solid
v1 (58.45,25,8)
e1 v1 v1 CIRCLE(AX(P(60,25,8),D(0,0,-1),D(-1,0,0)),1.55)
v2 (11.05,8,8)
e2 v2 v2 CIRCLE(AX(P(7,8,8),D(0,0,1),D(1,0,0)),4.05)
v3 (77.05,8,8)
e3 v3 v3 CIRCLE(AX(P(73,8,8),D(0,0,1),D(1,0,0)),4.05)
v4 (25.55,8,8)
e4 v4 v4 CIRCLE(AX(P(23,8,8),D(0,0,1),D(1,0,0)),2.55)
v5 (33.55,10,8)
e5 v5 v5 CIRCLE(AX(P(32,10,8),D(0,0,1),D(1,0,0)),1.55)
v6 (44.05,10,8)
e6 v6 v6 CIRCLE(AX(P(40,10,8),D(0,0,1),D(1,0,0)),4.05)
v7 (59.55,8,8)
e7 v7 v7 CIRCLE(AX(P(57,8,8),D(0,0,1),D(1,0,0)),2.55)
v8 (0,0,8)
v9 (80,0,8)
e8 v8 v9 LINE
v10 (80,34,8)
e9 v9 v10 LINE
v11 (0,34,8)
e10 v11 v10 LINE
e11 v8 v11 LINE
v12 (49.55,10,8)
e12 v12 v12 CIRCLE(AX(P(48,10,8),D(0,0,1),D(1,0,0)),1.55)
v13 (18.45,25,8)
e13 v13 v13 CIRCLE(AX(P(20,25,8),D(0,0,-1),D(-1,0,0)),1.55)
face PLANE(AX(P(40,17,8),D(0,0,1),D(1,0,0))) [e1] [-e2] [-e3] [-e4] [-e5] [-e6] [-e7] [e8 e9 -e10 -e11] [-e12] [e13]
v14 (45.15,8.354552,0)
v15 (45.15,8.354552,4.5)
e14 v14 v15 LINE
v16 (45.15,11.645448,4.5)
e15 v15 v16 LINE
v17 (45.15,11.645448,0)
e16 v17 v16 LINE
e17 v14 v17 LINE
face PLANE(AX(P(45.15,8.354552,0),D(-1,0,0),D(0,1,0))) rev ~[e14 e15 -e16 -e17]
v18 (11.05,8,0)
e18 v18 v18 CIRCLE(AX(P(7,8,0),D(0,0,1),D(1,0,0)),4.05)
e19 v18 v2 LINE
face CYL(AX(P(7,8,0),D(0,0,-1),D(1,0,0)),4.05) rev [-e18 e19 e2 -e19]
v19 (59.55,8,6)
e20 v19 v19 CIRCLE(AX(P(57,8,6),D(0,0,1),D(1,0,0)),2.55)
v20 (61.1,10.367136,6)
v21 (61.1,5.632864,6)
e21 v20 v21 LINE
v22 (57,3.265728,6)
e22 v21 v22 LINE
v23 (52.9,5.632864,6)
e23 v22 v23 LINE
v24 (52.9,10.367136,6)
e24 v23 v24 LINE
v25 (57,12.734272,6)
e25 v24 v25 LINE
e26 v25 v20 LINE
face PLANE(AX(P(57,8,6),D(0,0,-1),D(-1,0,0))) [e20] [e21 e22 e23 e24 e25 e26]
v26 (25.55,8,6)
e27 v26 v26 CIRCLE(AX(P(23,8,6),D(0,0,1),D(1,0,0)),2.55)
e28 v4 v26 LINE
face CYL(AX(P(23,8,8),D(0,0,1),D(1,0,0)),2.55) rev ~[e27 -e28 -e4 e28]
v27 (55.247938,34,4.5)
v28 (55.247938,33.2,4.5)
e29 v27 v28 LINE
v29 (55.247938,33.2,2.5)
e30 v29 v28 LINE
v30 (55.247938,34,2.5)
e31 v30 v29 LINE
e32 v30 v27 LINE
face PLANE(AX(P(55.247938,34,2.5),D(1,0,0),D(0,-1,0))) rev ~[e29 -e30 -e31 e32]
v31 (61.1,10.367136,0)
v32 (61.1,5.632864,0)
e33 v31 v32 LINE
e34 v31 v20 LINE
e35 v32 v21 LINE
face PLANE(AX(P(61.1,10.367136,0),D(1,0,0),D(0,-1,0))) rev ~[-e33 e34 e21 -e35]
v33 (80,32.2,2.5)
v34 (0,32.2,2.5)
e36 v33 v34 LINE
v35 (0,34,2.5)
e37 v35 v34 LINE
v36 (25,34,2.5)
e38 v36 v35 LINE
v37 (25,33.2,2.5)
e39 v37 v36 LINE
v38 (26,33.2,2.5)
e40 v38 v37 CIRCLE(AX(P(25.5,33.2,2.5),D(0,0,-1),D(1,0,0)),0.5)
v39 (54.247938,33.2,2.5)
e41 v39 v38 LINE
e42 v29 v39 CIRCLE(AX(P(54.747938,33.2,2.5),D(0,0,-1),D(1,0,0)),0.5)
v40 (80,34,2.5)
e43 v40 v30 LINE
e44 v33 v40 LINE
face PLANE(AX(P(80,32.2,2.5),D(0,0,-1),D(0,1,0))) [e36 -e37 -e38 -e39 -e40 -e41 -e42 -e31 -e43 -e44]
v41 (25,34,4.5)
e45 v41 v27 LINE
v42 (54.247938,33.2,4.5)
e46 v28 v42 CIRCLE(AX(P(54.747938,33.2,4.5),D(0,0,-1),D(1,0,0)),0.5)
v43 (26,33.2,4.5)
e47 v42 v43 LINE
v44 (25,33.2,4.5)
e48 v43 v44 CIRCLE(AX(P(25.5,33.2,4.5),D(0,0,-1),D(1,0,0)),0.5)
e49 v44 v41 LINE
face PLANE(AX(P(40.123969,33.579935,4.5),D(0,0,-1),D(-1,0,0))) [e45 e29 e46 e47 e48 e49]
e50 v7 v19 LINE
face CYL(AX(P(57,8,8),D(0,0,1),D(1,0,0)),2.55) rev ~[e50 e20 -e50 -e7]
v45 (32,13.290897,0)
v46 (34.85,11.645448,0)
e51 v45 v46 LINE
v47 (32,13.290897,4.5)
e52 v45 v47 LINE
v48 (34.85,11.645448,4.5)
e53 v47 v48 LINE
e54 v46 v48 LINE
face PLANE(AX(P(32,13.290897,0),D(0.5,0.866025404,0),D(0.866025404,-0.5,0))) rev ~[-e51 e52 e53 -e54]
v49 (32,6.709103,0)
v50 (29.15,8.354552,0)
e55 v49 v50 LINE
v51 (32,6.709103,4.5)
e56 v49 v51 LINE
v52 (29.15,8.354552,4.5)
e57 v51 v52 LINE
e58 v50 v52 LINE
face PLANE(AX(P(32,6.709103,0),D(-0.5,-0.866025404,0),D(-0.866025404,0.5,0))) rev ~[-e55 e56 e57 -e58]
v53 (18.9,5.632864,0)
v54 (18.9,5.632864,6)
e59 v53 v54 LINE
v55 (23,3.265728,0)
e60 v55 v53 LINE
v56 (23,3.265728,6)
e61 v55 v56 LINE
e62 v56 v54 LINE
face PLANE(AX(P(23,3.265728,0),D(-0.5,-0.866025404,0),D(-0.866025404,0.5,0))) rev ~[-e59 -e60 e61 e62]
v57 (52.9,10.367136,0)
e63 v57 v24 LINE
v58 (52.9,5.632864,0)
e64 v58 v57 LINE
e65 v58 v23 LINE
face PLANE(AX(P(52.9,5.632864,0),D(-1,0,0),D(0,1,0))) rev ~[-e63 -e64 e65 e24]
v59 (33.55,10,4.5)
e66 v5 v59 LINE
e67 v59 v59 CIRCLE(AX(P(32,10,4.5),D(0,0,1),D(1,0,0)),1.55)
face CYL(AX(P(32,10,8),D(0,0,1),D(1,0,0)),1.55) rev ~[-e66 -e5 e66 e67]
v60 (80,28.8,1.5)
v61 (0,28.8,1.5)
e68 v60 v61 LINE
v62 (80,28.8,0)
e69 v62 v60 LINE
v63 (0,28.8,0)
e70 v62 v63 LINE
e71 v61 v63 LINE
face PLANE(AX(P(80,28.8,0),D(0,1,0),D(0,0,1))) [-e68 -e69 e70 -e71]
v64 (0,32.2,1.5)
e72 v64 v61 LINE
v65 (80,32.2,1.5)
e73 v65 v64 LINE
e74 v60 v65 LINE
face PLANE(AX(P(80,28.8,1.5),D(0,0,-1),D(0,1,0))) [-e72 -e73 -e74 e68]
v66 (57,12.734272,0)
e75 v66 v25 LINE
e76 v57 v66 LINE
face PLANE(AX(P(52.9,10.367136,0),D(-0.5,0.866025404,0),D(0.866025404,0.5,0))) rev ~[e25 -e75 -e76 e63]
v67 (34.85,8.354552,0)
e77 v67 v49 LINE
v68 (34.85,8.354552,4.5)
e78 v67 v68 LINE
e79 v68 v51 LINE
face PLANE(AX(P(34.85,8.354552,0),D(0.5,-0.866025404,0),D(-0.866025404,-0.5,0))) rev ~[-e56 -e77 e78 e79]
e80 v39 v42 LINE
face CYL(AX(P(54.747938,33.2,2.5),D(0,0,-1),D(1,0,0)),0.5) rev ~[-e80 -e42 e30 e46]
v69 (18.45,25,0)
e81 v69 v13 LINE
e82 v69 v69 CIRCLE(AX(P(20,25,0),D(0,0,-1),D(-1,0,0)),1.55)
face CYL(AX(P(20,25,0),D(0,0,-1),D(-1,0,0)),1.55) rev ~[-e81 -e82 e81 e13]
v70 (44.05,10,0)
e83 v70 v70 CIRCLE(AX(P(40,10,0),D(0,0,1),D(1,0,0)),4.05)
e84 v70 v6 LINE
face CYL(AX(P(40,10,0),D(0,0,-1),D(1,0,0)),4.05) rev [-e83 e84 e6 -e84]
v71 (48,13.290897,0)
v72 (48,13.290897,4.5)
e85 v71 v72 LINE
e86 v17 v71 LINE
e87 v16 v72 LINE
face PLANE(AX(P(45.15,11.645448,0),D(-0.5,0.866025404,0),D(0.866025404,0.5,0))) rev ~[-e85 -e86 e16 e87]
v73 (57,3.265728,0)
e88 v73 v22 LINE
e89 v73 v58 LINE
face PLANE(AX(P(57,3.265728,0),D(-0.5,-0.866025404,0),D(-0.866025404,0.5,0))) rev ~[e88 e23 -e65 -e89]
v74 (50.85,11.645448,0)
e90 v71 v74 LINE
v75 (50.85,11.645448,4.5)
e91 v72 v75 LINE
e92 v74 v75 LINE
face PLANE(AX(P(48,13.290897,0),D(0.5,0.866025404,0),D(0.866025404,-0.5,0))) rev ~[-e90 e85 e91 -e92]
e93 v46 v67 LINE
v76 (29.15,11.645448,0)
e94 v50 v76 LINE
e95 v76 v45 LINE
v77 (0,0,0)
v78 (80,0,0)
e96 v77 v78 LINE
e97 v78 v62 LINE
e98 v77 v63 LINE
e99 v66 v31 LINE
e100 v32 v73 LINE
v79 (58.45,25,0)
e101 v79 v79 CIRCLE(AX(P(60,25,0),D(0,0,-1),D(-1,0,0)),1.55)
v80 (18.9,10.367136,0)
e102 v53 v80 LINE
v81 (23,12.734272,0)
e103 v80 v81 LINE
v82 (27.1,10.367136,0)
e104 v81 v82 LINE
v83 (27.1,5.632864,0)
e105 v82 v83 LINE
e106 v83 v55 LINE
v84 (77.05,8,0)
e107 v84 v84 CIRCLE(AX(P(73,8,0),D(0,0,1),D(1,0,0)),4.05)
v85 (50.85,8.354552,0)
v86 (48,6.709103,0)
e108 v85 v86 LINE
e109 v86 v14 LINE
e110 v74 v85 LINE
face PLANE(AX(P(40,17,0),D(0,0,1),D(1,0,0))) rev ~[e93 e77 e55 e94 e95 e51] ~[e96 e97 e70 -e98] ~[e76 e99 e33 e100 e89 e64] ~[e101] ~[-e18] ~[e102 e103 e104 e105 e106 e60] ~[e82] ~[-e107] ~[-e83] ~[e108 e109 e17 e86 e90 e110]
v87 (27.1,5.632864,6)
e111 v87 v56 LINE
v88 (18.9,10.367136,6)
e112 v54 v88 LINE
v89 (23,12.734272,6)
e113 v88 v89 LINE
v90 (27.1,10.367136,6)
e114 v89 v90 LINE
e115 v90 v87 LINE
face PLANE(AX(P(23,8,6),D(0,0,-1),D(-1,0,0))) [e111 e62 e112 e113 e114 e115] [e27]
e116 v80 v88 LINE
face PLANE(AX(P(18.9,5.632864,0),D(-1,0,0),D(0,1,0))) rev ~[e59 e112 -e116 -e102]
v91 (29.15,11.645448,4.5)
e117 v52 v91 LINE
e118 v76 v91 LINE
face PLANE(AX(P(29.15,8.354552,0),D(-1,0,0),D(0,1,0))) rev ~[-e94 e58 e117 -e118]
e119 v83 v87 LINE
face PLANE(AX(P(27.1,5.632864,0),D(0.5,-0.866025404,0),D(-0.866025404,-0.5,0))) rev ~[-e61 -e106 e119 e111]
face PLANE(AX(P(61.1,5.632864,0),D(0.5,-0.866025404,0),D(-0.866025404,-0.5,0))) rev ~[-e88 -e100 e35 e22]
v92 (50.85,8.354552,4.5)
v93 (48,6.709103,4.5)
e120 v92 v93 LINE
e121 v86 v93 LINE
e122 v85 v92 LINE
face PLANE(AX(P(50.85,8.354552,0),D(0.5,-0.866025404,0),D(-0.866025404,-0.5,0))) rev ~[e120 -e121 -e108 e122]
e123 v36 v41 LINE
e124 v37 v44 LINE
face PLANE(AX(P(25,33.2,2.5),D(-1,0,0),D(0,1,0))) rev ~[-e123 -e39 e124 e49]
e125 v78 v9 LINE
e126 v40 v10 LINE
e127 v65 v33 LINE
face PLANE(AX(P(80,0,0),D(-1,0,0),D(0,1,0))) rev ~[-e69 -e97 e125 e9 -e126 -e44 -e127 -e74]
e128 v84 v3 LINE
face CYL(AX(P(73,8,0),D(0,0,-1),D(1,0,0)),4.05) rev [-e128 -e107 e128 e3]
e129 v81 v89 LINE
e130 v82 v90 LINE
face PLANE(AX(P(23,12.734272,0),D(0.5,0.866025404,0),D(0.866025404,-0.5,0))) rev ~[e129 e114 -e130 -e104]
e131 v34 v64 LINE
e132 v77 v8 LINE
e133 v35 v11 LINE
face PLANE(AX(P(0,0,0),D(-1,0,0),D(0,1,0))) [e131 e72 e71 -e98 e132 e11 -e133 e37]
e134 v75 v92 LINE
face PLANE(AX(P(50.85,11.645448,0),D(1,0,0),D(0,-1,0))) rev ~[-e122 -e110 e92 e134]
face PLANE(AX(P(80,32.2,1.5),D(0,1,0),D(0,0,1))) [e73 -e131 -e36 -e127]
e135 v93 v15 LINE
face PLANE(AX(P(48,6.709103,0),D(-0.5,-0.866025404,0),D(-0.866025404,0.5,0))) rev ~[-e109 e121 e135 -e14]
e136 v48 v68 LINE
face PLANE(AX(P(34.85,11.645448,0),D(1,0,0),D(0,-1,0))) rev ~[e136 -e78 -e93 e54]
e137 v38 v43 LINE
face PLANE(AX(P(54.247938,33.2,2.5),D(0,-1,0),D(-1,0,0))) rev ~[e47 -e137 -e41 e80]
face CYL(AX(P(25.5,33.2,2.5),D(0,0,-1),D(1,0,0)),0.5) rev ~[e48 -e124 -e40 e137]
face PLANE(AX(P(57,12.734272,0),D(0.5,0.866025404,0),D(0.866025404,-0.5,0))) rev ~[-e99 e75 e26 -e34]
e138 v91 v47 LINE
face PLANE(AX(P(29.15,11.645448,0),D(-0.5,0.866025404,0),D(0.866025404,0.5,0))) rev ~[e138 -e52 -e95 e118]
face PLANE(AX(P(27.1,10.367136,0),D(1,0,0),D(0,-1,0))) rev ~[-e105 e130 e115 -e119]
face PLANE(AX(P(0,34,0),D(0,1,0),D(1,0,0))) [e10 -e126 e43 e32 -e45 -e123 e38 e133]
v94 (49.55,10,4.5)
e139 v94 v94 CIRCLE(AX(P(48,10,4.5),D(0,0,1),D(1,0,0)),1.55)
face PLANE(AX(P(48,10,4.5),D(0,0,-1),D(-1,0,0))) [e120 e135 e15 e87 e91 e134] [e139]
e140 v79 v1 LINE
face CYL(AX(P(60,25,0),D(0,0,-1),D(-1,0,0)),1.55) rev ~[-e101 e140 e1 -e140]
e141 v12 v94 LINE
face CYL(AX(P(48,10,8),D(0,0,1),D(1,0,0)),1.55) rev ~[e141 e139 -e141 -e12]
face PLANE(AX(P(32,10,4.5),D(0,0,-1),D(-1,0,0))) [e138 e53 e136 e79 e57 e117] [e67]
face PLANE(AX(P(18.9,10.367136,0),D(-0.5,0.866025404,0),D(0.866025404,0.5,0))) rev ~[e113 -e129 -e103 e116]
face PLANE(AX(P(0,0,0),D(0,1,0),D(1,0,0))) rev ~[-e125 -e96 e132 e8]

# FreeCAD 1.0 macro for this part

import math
import FreeCAD as App
import Part
import Sketcher
from FreeCAD import Vector
Q = App.Units.Quantity


def add_polygon(sketch, points):
    """Adds a closed chain of lines whose ends are joined by coincident constraints."""
    first, n = sketch.GeometryCount, len(points)
    for a, b in zip(points, points[1:] + points[:1]):
        sketch.addGeometry(Part.LineSegment(App.Vector(*a, 0), App.Vector(*b, 0)), False)
    for i in range(n):
        sketch.addConstraint(Sketcher.Constraint("Coincident", first + i, 2, first + (i + 1) % n, 1))

doc = App.newDocument("Part")
body = doc.addObject("PartDesign::Body", "Body")

sketch1 = body.newObject("Sketcher::SketchObject", "Sketch")
sketch1.AttachmentSupport = (doc.getObject("XY_Plane"), [""])
sketch1.MapMode = "FlatFace"
add_polygon(sketch1, [(0, 34), (0, 0), (80, 0), (80, 34)])
sketch1.addGeometry(Part.Circle(Vector(7, 8, 0), Vector(0, 0, 1), 4), False)
sketch1.addGeometry(Part.Circle(Vector(73, 8, 0), Vector(0, 0, 1), 4), False)
sketch1.addGeometry(Part.Circle(Vector(40, 10, 0), Vector(0, 0, 1), 4), False)
sketch1.addConstraint([
    Sketcher.Constraint("Vertical", 0),
    Sketcher.Constraint("Horizontal", 1),
    Sketcher.Constraint("Vertical", 2),
    Sketcher.Constraint("Horizontal", 3),
    Sketcher.Constraint("Coincident", 0, 2, -1, 1),
    Sketcher.Constraint("Equal", 4, 5),
    Sketcher.Constraint("Equal", 5, 6),
    Sketcher.Constraint("Horizontal", 4, 3, 5, 3),
    Sketcher.Constraint("Diameter", 4, Q("8.1 mm")),
    Sketcher.Constraint("DistanceX", 1, 1, 1, 2, Q("80 mm")),
    Sketcher.Constraint("DistanceY", 0, 2, 0, 1, Q("34 mm")),
    Sketcher.Constraint("DistanceX", -1, 1, 4, 3, Q("7 mm")),
    Sketcher.Constraint("DistanceY", -1, 1, 4, 3, Q("8 mm")),
    Sketcher.Constraint("DistanceX", -1, 1, 5, 3, Q("73 mm")),
    Sketcher.Constraint("DistanceX", -1, 1, 6, 3, Q("40 mm")),
    Sketcher.Constraint("DistanceY", -1, 1, 6, 3, Q("10 mm")),
])
pad1 = body.newObject("PartDesign::Pad", "Pad")
pad1.Profile = sketch1
pad1.Length = 8

sketch2 = body.newObject("Sketcher::SketchObject", "Sketch001")
sketch2.AttachmentSupport = (doc.getObject("XY_Plane"), [""])
sketch2.MapMode = "FlatFace"
sketch2.AttachmentOffset = App.Placement(Vector(0, 0, 8), App.Rotation())
sketch2.addGeometry([
    Part.Circle(Vector(23, 8, 0), Vector(0, 0, 1), 2.5),
    Part.Circle(Vector(57, 8, 0), Vector(0, 0, 1), 2.5),
], False)
sketch2.addConstraint([
    Sketcher.Constraint("Equal", 0, 1),
    Sketcher.Constraint("Horizontal", 0, 3, 1, 3),
    Sketcher.Constraint("Diameter", 0, Q("5.1 mm")),
    Sketcher.Constraint("DistanceX", -1, 1, 0, 3, Q("23 mm")),
    Sketcher.Constraint("DistanceY", -1, 1, 0, 3, Q("8 mm")),
    Sketcher.Constraint("DistanceX", -1, 1, 1, 3, Q("57 mm")),
])
pocket1 = body.newObject("PartDesign::Pocket", "Pocket")
pocket1.Profile = sketch2
pocket1.Type = "ThroughAll"

sketch3 = body.newObject("Sketcher::SketchObject", "Sketch002")
sketch3.AttachmentSupport = (doc.getObject("YZ_Plane"), [""])
sketch3.MapMode = "FlatFace"
sketch3.AttachmentOffset = App.Placement(Vector(0, 0, 80), App.Rotation())
add_polygon(sketch3, [(32.2, 2.5), (32.2, 1.5), (28.8, 1.5), (28.8, 0), (34, 0), (34, 2.5)])
sketch3.addConstraint([
    Sketcher.Constraint("Vertical", 0),
    Sketcher.Constraint("Horizontal", 1),
    Sketcher.Constraint("Vertical", 2),
    Sketcher.Constraint("Horizontal", 3),
    Sketcher.Constraint("Vertical", 4),
    Sketcher.Constraint("Horizontal", 5),
    Sketcher.Constraint("PointOnObject", 2, 2, -1),
    Sketcher.Constraint("DistanceY", 0, 2, 0, 1, Q("1 mm")),
    Sketcher.Constraint("DistanceX", 1, 2, 1, 1, Q("3.4 mm")),
    Sketcher.Constraint("DistanceX", 3, 1, 3, 2, Q("5.2 mm")),
    Sketcher.Constraint("DistanceY", 2, 2, 2, 1, Q("1.5 mm")),
    Sketcher.Constraint("DistanceX", -1, 1, 3, 2, Q("34 mm")),
])
pocket2 = body.newObject("PartDesign::Pocket", "Pocket001")
pocket2.Profile = sketch3
pocket2.Type = "ThroughAll"

sketch4 = body.newObject("Sketcher::SketchObject", "Sketch003")
sketch4.AttachmentSupport = (doc.getObject("XY_Plane"), [""])
sketch4.MapMode = "FlatFace"
sketch4.AttachmentOffset = App.Placement(Vector(0, 0, 8), App.Rotation())
sketch4.addGeometry([
    Part.Circle(Vector(48, 10, 0), Vector(0, 0, 1), 1.6),
    Part.Circle(Vector(32, 10, 0), Vector(0, 0, 1), 1.6),
], False)
sketch4.addConstraint([
    Sketcher.Constraint("Equal", 0, 1),
    Sketcher.Constraint("Horizontal", 0, 3, 1, 3),
    Sketcher.Constraint("Diameter", 0, Q("3.1 mm")),
    Sketcher.Constraint("DistanceX", -1, 1, 0, 3, Q("48 mm")),
    Sketcher.Constraint("DistanceY", -1, 1, 0, 3, Q("10 mm")),
    Sketcher.Constraint("DistanceX", -1, 1, 1, 3, Q("32 mm")),
])
pocket3 = body.newObject("PartDesign::Pocket", "Pocket002")
pocket3.Profile = sketch4
pocket3.Type = "ThroughAll"

sketch5 = body.newObject("Sketcher::SketchObject", "Sketch004")
sketch5.AttachmentSupport = (doc.getObject("XY_Plane"), [""])
sketch5.MapMode = "FlatFace"
add_polygon(sketch5, [(45.1, 8.4), (45.1, 11.6), (48, 13.3), (50.9, 11.6), (50.9, 8.4), (48, 6.7)])
add_polygon(sketch5, [(29.1, 8.4), (29.1, 11.6), (32, 13.3), (34.9, 11.6), (34.9, 8.4), (32, 6.7)])
sketch5.addConstraint([
    Sketcher.Constraint("Vertical", 0),
    Sketcher.Constraint("Vertical", 3),
    Sketcher.Constraint("Vertical", 6),
    Sketcher.Constraint("Vertical", 9),
    Sketcher.Constraint("Parallel", 1, 4),
    Sketcher.Constraint("Parallel", 2, 5),
    Sketcher.Constraint("Parallel", 4, 7),
    Sketcher.Constraint("Parallel", 5, 8),
    Sketcher.Constraint("Parallel", 7, 10),
    Sketcher.Constraint("Parallel", 8, 11),
    Sketcher.Constraint("Horizontal", 0, 2, 2, 2),
    Sketcher.Constraint("Horizontal", 3, 2, 5, 2),
    Sketcher.Constraint("Horizontal", 2, 2, 6, 2),
    Sketcher.Constraint("Horizontal", 1, 2, 7, 2),
    Sketcher.Constraint("Horizontal", 6, 2, 8, 2),
    Sketcher.Constraint("Horizontal", 5, 2, 9, 2),
    Sketcher.Constraint("Horizontal", 4, 2, 10, 2),
    Sketcher.Constraint("Vertical", 1, 2, 4, 2),
    Sketcher.Constraint("Angle", 1, Q("30 deg")),
    Sketcher.Constraint("DistanceX", -1, 1, 1, 2, Q("48 mm")),
    Sketcher.Constraint("DistanceX", -1, 1, 7, 2, Q("32 mm")),
    Sketcher.Constraint("DistanceX", 0, 2, 2, 2, Q("5.7 mm")),
    Sketcher.Constraint("DistanceY", 0, 1, 0, 2, Q("3.290897 mm")),
    Sketcher.Constraint("DistanceY", -1, 1, 0, 2, Q("11.645448 mm")),
])
pocket4 = body.newObject("PartDesign::Pocket", "Pocket003")
pocket4.Profile = sketch5
pocket4.Length = 4.5
pocket4.Reversed = True

sketch6 = body.newObject("Sketcher::SketchObject", "Sketch005")
sketch6.AttachmentSupport = (doc.getObject("XY_Plane"), [""])
sketch6.MapMode = "FlatFace"
sketch6.addGeometry([
    Part.Circle(Vector(60, 25, 0), Vector(0, 0, 1), 1.6),
    Part.Circle(Vector(20, 25, 0), Vector(0, 0, 1), 1.6),
], False)
sketch6.addConstraint([
    Sketcher.Constraint("Equal", 0, 1),
    Sketcher.Constraint("Horizontal", 0, 3, 1, 3),
    Sketcher.Constraint("Diameter", 0, Q("3.1 mm")),
    Sketcher.Constraint("DistanceX", -1, 1, 0, 3, Q("60 mm")),
    Sketcher.Constraint("DistanceY", -1, 1, 0, 3, Q("25 mm")),
    Sketcher.Constraint("DistanceX", -1, 1, 1, 3, Q("20 mm")),
])
pocket5 = body.newObject("PartDesign::Pocket", "Pocket004")
pocket5.Profile = sketch6
pocket5.Type = "ThroughAll"
pocket5.Reversed = True

sketch7 = body.newObject("Sketcher::SketchObject", "Sketch006")
sketch7.AttachmentSupport = (doc.getObject("XY_Plane"), [""])
sketch7.MapMode = "FlatFace"
sketch7.AttachmentOffset = App.Placement(Vector(0, 0, 2.5), App.Rotation())
sketch7.addGeometry([
    Part.LineSegment(Vector(25, 34, 0), Vector(55.2, 34, 0)),
    Part.LineSegment(Vector(55.2, 34, 0), Vector(55.2, 33.2, 0)),
    Part.ArcOfCircle(Part.Circle(Vector(54.7, 33.2, 0), Vector(0, 0, 1), 0.5), math.radians(180), math.radians(360)),
    Part.LineSegment(Vector(54.2, 33.2, 0), Vector(26, 33.2, 0)),
    Part.ArcOfCircle(Part.Circle(Vector(25.5, 33.2, 0), Vector(0, 0, 1), 0.5), math.radians(180), math.radians(360)),
    Part.LineSegment(Vector(25, 33.2, 0), Vector(25, 34, 0)),
], False)
sketch7.addConstraint([
    Sketcher.Constraint("Coincident", 0, 2, 1, 1),
    Sketcher.Constraint("Tangent", 1, 2, 2, 2),
    Sketcher.Constraint("Coincident", 2, 1, 3, 1),
    Sketcher.Constraint("Coincident", 3, 2, 4, 2),
    Sketcher.Constraint("Tangent", 4, 1, 5, 1),
    Sketcher.Constraint("Coincident", 5, 2, 0, 1),
    Sketcher.Constraint("Horizontal", 0),
    Sketcher.Constraint("Vertical", 1),
    Sketcher.Constraint("Horizontal", 3),
    Sketcher.Constraint("Vertical", 5),
    Sketcher.Constraint("Equal", 2, 4),
    Sketcher.Constraint("Horizontal", 2, 3, 4, 3),
    Sketcher.Constraint("Horizontal", 1, 2, 2, 1),
    Sketcher.Constraint("Radius", 2, Q("0.5 mm")),
    Sketcher.Constraint("DistanceY", 1, 2, 1, 1, Q("0.8 mm")),
    Sketcher.Constraint("DistanceY", -1, 1, 0, 2, Q("34 mm")),
    Sketcher.Constraint("DistanceX", -1, 1, 3, 2, Q("26 mm")),
    Sketcher.Constraint("DistanceX", 0, 1, 0, 2, Q("30.247938 mm")),
])
pocket6 = body.newObject("PartDesign::Pocket", "Pocket005")
pocket6.Profile = sketch7
pocket6.Length = 2
pocket6.Reversed = True

sketch8 = body.newObject("Sketcher::SketchObject", "Sketch007")
sketch8.AttachmentSupport = (doc.getObject("XY_Plane"), [""])
sketch8.MapMode = "FlatFace"
add_polygon(sketch8, [(52.9, 5.6), (52.9, 10.4), (57, 12.7), (61.1, 10.4), (61.1, 5.6), (57, 3.3)])
add_polygon(sketch8, [(18.9, 5.6), (18.9, 10.4), (23, 12.7), (27.1, 10.4), (27.1, 5.6), (23, 3.3)])
sketch8.addConstraint([
    Sketcher.Constraint("Vertical", 0),
    Sketcher.Constraint("Vertical", 3),
    Sketcher.Constraint("Vertical", 6),
    Sketcher.Constraint("Vertical", 9),
    Sketcher.Constraint("Parallel", 1, 4),
    Sketcher.Constraint("Parallel", 2, 5),
    Sketcher.Constraint("Parallel", 4, 7),
    Sketcher.Constraint("Parallel", 5, 8),
    Sketcher.Constraint("Parallel", 7, 10),
    Sketcher.Constraint("Parallel", 8, 11),
    Sketcher.Constraint("Horizontal", 0, 2, 2, 2),
    Sketcher.Constraint("Horizontal", 3, 2, 5, 2),
    Sketcher.Constraint("Horizontal", 2, 2, 6, 2),
    Sketcher.Constraint("Horizontal", 1, 2, 7, 2),
    Sketcher.Constraint("Horizontal", 6, 2, 8, 2),
    Sketcher.Constraint("Horizontal", 5, 2, 9, 2),
    Sketcher.Constraint("Horizontal", 4, 2, 10, 2),
    Sketcher.Constraint("Vertical", 1, 2, 4, 2),
    Sketcher.Constraint("Angle", 1, Q("30 deg")),
    Sketcher.Constraint("DistanceX", -1, 1, 1, 2, Q("57 mm")),
    Sketcher.Constraint("DistanceX", -1, 1, 7, 2, Q("23 mm")),
    Sketcher.Constraint("DistanceX", -1, 1, 0, 2, Q("52.9 mm")),
    Sketcher.Constraint("DistanceY", 0, 1, 0, 2, Q("4.734272 mm")),
    Sketcher.Constraint("DistanceY", -1, 1, 0, 2, Q("10.367136 mm")),
])
pocket7 = body.newObject("PartDesign::Pocket", "Pocket006")
pocket7.Profile = sketch8
pocket7.Length = 6
pocket7.Reversed = True

doc.recompute()
